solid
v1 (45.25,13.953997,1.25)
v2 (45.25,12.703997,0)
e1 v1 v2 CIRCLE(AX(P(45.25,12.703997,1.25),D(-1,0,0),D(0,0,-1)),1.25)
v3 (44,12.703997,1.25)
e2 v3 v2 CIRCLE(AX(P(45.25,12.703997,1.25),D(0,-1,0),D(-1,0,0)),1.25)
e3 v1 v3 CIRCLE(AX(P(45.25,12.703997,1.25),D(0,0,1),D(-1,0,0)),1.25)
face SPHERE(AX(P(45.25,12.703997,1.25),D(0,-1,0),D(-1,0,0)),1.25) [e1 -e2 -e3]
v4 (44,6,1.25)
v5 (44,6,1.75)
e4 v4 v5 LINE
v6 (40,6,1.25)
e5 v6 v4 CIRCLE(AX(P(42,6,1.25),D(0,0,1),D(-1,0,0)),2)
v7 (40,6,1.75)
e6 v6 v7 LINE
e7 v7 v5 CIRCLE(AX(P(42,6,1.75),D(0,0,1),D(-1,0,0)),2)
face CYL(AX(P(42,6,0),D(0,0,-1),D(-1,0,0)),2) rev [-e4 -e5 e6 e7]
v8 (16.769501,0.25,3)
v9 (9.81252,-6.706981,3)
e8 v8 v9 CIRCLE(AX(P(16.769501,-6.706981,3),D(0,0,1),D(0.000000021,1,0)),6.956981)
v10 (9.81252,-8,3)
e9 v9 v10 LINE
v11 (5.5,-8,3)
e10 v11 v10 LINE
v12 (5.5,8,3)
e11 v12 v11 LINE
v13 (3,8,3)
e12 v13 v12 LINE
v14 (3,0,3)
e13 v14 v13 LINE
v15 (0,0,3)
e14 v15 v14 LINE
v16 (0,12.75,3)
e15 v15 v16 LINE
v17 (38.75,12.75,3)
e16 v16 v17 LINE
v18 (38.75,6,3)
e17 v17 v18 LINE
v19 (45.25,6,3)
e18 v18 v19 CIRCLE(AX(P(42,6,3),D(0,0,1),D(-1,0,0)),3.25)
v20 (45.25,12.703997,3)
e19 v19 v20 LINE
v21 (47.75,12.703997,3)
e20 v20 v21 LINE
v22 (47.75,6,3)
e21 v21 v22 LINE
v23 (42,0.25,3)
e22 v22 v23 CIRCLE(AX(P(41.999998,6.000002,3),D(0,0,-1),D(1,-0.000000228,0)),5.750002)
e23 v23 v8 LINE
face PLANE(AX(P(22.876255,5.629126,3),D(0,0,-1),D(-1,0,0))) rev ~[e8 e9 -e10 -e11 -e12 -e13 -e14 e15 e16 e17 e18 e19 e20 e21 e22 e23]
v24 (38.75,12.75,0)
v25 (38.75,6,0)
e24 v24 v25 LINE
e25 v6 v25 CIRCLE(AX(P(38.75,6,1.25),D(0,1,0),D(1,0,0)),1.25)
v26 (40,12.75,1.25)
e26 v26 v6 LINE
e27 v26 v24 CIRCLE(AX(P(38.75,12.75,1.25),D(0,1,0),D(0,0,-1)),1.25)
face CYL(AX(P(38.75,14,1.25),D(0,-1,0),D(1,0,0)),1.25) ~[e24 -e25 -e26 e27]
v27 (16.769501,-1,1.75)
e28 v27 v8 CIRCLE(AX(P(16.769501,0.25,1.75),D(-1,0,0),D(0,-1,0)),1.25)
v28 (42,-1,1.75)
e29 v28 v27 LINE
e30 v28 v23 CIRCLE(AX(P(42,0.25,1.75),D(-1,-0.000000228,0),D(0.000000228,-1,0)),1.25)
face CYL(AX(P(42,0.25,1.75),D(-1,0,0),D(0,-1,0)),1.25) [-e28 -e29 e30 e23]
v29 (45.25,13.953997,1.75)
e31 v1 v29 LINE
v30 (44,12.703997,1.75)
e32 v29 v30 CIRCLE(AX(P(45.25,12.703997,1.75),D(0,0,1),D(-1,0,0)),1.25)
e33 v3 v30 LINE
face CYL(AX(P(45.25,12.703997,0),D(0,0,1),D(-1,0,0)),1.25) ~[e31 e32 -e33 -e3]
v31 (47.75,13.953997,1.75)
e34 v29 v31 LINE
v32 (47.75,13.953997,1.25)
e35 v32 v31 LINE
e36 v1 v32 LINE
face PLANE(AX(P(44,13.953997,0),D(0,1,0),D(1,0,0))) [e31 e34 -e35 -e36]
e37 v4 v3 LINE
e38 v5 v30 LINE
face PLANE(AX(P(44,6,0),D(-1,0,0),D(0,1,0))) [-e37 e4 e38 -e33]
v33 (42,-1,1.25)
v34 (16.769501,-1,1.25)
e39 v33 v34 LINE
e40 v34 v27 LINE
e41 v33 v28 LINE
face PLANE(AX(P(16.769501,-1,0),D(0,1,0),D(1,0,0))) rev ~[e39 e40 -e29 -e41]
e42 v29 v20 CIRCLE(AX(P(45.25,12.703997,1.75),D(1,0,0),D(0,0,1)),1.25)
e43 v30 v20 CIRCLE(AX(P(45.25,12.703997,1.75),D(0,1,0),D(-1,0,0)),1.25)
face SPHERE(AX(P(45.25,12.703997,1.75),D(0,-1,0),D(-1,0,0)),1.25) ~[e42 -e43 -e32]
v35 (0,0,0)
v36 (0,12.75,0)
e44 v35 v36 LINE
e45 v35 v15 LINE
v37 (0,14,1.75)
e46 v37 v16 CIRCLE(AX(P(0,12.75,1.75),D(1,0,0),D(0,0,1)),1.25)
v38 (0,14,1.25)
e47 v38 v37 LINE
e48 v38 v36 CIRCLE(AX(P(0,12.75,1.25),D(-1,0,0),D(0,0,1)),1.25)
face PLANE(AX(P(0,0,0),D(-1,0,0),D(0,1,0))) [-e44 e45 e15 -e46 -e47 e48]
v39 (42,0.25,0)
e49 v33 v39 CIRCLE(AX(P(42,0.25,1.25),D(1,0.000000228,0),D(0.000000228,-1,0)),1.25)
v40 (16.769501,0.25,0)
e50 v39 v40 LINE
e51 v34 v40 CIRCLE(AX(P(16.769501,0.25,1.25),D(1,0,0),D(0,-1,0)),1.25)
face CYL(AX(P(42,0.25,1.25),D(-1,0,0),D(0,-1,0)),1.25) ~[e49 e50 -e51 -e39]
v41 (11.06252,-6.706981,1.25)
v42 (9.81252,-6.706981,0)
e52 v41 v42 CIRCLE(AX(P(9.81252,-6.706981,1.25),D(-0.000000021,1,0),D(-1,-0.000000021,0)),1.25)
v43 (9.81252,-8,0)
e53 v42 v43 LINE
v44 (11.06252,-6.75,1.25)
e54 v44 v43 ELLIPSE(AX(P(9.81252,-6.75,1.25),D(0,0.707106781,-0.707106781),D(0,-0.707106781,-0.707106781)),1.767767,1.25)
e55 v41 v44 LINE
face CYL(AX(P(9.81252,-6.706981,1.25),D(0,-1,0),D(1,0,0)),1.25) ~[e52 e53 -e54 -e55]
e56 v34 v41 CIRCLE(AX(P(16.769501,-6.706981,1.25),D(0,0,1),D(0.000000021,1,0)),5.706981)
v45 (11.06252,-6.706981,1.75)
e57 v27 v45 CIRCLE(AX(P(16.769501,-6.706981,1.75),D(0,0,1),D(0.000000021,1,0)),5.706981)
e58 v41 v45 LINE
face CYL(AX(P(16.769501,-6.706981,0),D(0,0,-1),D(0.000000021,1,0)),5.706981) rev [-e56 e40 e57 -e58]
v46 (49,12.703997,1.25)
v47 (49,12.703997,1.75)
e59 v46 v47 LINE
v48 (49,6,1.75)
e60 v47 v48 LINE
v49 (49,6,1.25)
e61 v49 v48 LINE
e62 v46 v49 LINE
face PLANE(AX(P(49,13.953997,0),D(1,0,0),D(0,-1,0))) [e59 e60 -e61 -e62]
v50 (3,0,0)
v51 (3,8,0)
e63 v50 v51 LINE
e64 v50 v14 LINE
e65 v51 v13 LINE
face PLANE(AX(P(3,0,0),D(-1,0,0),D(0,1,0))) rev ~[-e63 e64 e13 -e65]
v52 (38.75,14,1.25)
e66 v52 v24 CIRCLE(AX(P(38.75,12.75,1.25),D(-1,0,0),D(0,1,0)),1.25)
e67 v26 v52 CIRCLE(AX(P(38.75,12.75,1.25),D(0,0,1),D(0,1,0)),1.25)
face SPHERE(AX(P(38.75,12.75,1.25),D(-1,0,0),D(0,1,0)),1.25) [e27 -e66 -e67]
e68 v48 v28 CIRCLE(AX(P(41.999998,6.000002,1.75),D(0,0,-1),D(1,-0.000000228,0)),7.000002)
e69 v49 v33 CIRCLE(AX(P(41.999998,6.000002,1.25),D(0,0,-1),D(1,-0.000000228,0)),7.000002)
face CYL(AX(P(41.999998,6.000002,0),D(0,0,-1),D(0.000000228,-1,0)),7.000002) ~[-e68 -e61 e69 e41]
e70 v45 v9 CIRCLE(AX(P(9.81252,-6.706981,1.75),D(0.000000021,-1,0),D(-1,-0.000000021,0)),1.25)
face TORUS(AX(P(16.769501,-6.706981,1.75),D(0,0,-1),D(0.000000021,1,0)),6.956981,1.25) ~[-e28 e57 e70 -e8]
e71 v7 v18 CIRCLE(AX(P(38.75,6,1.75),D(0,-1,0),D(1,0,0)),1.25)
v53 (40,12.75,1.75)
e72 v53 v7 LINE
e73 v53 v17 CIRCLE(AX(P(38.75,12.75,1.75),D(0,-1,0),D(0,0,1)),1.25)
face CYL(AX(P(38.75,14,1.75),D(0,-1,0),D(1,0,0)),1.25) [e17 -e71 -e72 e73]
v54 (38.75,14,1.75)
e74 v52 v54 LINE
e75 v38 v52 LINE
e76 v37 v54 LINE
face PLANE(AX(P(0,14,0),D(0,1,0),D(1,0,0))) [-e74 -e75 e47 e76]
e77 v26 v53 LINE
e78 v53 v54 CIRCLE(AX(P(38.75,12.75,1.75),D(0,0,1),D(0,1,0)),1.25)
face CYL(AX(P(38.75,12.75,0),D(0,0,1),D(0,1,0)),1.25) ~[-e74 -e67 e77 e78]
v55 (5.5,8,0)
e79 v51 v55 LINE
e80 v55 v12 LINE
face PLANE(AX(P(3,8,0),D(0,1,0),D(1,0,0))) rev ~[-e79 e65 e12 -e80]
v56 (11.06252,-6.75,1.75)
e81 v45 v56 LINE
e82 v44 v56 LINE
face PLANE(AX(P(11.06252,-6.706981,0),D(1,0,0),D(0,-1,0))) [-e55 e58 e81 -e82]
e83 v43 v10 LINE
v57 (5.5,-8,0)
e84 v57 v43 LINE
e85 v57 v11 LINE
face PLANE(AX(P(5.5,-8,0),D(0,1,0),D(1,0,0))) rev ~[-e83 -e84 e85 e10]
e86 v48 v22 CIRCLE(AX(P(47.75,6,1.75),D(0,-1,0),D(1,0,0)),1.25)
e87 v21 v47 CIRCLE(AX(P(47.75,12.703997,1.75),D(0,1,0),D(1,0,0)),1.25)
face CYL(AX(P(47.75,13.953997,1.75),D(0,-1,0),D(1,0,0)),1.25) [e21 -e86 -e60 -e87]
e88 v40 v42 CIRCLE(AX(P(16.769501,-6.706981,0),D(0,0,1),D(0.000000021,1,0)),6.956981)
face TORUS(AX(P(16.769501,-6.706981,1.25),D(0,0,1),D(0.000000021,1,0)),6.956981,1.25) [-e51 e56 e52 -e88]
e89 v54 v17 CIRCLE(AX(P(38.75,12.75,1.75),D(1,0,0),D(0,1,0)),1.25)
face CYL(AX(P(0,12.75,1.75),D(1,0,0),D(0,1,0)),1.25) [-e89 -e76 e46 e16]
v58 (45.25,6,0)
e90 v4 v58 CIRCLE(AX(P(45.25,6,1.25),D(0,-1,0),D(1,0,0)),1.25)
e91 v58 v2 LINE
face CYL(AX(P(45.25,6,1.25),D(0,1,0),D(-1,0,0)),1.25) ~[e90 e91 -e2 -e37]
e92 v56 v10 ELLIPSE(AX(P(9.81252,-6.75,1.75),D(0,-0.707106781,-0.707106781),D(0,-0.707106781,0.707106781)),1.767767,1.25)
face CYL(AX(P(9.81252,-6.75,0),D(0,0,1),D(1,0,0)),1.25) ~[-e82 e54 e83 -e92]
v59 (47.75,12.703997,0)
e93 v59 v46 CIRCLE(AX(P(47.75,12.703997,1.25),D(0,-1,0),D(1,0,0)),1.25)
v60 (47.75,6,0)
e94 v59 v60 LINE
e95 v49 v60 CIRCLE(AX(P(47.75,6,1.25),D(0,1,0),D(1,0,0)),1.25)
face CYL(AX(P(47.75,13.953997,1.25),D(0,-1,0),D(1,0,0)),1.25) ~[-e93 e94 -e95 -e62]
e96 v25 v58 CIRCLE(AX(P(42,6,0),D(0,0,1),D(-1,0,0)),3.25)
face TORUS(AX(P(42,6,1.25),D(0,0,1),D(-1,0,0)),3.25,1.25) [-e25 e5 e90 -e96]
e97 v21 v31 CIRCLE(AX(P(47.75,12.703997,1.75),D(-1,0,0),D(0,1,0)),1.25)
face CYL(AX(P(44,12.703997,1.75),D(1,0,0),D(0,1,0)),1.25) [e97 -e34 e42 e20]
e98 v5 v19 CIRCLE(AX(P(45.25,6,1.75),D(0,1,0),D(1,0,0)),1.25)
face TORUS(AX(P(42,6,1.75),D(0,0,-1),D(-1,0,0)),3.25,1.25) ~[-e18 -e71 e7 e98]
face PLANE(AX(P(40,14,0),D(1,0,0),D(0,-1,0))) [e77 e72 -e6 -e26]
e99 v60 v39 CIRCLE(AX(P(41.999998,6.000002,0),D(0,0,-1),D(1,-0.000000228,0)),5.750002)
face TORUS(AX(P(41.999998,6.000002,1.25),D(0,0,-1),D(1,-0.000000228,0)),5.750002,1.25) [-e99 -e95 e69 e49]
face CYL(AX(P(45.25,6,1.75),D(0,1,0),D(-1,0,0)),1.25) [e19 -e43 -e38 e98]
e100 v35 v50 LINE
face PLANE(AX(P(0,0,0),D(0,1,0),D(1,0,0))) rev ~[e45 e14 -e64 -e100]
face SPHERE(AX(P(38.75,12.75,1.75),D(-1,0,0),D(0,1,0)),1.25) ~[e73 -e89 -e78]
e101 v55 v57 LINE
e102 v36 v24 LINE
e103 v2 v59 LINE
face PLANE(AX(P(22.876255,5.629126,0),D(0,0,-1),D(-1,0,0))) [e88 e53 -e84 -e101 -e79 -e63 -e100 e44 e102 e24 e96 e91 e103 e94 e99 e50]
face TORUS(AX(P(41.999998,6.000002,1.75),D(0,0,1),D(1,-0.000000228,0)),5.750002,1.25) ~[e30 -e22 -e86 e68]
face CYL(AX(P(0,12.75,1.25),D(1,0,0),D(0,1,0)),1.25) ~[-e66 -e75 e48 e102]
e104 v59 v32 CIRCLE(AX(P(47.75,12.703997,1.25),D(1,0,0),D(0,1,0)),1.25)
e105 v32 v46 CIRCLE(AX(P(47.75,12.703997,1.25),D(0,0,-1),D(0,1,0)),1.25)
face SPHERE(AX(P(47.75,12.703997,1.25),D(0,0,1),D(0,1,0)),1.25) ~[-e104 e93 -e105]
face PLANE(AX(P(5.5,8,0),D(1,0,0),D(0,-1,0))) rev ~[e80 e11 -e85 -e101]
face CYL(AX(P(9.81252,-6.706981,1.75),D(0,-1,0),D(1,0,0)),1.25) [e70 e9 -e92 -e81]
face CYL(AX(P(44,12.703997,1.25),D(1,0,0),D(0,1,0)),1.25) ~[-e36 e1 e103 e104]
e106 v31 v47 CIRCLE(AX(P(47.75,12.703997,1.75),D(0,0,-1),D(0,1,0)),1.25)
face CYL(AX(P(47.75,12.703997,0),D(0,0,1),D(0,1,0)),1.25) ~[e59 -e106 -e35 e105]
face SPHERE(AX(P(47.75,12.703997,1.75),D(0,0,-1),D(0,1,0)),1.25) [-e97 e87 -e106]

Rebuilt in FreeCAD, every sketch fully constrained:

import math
import FreeCAD as App
import Part
import Sketcher
from FreeCAD import Vector


def edges_at(feature, points):
    """Names of the edges that pass closest to the given points."""
    edges = feature.Shape.Edges
    near = lambda p: min(range(len(edges)), key=lambda i: edges[i].distToShape(Part.Vertex(*p))[0])
    return sorted({f"Edge{near(p) + 1}" for p in points})

doc = App.newDocument("Part")
params = doc.addObject("Spreadsheet::Sheet", "Params")
for row, (alias, value) in enumerate([
    ("sketch1_radius", "7.000002 mm"),
    ("sketch1_radius2", "2 mm"),
    ("sketch1_width", "3 mm"),
    ("sketch1_width2", "40 mm"),
    ("sketch1_height", "14 mm"),
    ("pad1_length", "3 mm"),
    ("fillet_radius", "1.25 mm"),
], start=1):
    params.set(f"A{row}", alias)
    params.set(f"B{row}", "=" + value)
    params.setAlias(f"B{row}", alias)

body = doc.addObject("PartDesign::Body", "Body")

# Sketch on XY plane
sketch1 = doc.addObject("Sketcher::SketchObject", "Sketch")
body.addObject(sketch1)
sketch1.AttachmentSupport = (doc.XY_Plane, [""])
sketch1.MapMode = "FlatFace"
sketch1.addGeometry(Part.LineSegment(Vector(0, 14, 0), Vector(0, 0, 0)), False)
sketch1.addGeometry(Part.LineSegment(Vector(0, 0, 0), Vector(3, 0, 0)), False)
sketch1.addGeometry(Part.LineSegment(Vector(3, 0, 0), Vector(3, 8, 0)), False)
sketch1.addGeometry(Part.LineSegment(Vector(3, 8, 0), Vector(5.5, 8, 0)), False)
sketch1.addGeometry(Part.LineSegment(Vector(5.5, 8, 0), Vector(5.5, -8, 0)), False)
sketch1.addGeometry(Part.LineSegment(Vector(5.5, -8, 0), Vector(11.1, -8, 0)), False)
sketch1.addGeometry(Part.LineSegment(Vector(11.1, -8, 0), Vector(11.1, -6.7, 0)), False)
sketch1.addGeometry(Part.ArcOfCircle(Part.Circle(Vector(16.8, -6.7, 0), Vector(0, 0, 1), 5.7), math.radians(90), math.radians(180)), False)
sketch1.addGeometry(Part.LineSegment(Vector(16.8, -1, 0), Vector(42, -1, 0)), False)
sketch1.addGeometry(Part.ArcOfCircle(Part.Circle(Vector(42, 6, 0), Vector(0, 0, 1), 7), math.radians(-90), math.radians(0)), False)
sketch1.addGeometry(Part.LineSegment(Vector(49, 6, 0), Vector(49, 14, 0)), False)
sketch1.addGeometry(Part.LineSegment(Vector(49, 14, 0), Vector(44, 14, 0)), False)
sketch1.addGeometry(Part.LineSegment(Vector(44, 14, 0), Vector(44, 6, 0)), False)
sketch1.addGeometry(Part.ArcOfCircle(Part.Circle(Vector(42, 6, 0), Vector(0, 0, 1), 2), math.radians(180), math.radians(360)), False)
sketch1.addGeometry(Part.LineSegment(Vector(40, 6, 0), Vector(40, 14, 0)), False)
sketch1.addGeometry(Part.LineSegment(Vector(40, 14, 0), Vector(0, 14, 0)), False)
sketch1.addConstraint(Sketcher.Constraint("Coincident", 0, 2, 1, 1))
sketch1.addConstraint(Sketcher.Constraint("Coincident", 1, 2, 2, 1))
sketch1.addConstraint(Sketcher.Constraint("Coincident", 2, 2, 3, 1))
sketch1.addConstraint(Sketcher.Constraint("Coincident", 3, 2, 4, 1))
sketch1.addConstraint(Sketcher.Constraint("Coincident", 4, 2, 5, 1))
sketch1.addConstraint(Sketcher.Constraint("Coincident", 5, 2, 6, 1))
sketch1.addConstraint(Sketcher.Constraint("Tangent", 6, 2, 7, 2))
sketch1.addConstraint(Sketcher.Constraint("Tangent", 7, 1, 8, 1))
sketch1.addConstraint(Sketcher.Constraint("Tangent", 8, 2, 9, 1))
sketch1.addConstraint(Sketcher.Constraint("Tangent", 9, 2, 10, 1))
sketch1.addConstraint(Sketcher.Constraint("Coincident", 10, 2, 11, 1))
sketch1.addConstraint(Sketcher.Constraint("Coincident", 11, 2, 12, 1))
sketch1.addConstraint(Sketcher.Constraint("Tangent", 12, 2, 13, 2))
sketch1.addConstraint(Sketcher.Constraint("Tangent", 13, 1, 14, 1))
sketch1.addConstraint(Sketcher.Constraint("Coincident", 14, 2, 15, 1))
sketch1.addConstraint(Sketcher.Constraint("Coincident", 15, 2, 0, 1))
sketch1.addConstraint(Sketcher.Constraint("Vertical", 0))
sketch1.addConstraint(Sketcher.Constraint("Horizontal", 1))
sketch1.addConstraint(Sketcher.Constraint("Vertical", 2))
sketch1.addConstraint(Sketcher.Constraint("Horizontal", 3))
sketch1.addConstraint(Sketcher.Constraint("Vertical", 4))
sketch1.addConstraint(Sketcher.Constraint("Horizontal", 5))
sketch1.addConstraint(Sketcher.Constraint("Vertical", 6))
sketch1.addConstraint(Sketcher.Constraint("Horizontal", 8))
sketch1.addConstraint(Sketcher.Constraint("Vertical", 10))
sketch1.addConstraint(Sketcher.Constraint("Horizontal", 11))
sketch1.addConstraint(Sketcher.Constraint("Vertical", 12))
sketch1.addConstraint(Sketcher.Constraint("Vertical", 14))
sketch1.addConstraint(Sketcher.Constraint("Horizontal", 15))
sketch1.addConstraint(Sketcher.Constraint("Coincident", 0, 2, -1, 1))
sketch1.addConstraint(Sketcher.Constraint("Coincident", 13, 3, 9, 3))
sketch1.addConstraint(Sketcher.Constraint("Equal", 2, 14))
sketch1.addConstraint(Sketcher.Constraint("Radius", 9, 7.000002))
sketch1.addConstraint(Sketcher.Constraint("Radius", 13, 2.0))
sketch1.addConstraint(Sketcher.Constraint("DistanceX", 1, 1, 1, 2, 3.0))
sketch1.addConstraint(Sketcher.Constraint("DistanceX", 15, 2, 15, 1, 40.0))
sketch1.addConstraint(Sketcher.Constraint("DistanceY", 0, 2, 0, 1, 14.0))
sketch1.addConstraint(Sketcher.Constraint("DistanceY", 2, 1, 2, 2, 8.0))
sketch1.addConstraint(Sketcher.Constraint("DistanceY", 4, 2, 4, 1, 16.0))
sketch1.addConstraint(Sketcher.Constraint("DistanceX", 3, 1, 3, 2, 2.5))
sketch1.addConstraint(Sketcher.Constraint("Radius", 7, 5.706981))
sketch1.addConstraint(Sketcher.Constraint("DistanceX", 8, 1, 8, 2, 25.230499))
sketch1.addConstraint(Sketcher.Constraint("DistanceY", 10, 1, 10, 2, 7.953997))
sketch1.setExpression("Constraints[32]", "Params.sketch1_radius")
sketch1.setExpression("Constraints[33]", "Params.sketch1_radius2")
sketch1.setExpression("Constraints[34]", "Params.sketch1_width")
sketch1.setExpression("Constraints[35]", "Params.sketch1_width2")
sketch1.setExpression("Constraints[36]", "Params.sketch1_height")
pad1 = doc.addObject("PartDesign::Pad", "Pad")
body.addObject(pad1)
pad1.Profile = sketch1
pad1.setExpression("Length", "Params.pad1_length")
doc.recompute()

fillet = doc.addObject("PartDesign::Fillet", "Fillet")
body.addObject(fillet)
fillet.Base = (pad1, edges_at(pad1, [
    (20, 14, 3),
    (20, 14, 0),
    (40, 14, 1.5),
    (40, 10, 0),
    (40, 10, 3),
    (42, 4, 0),
    (42, 4, 3),
    (44, 13.954, 1.5),
    (44, 9.977, 0),
    (44, 9.977, 3),
    (49, 13.954, 1.5),
    (46.5, 13.954, 0),
    (46.5, 13.954, 3),
    (49, 9.977, 0),
    (49, 9.977, 3),
    (46.95, 1.05, 0),
    (46.95, 1.05, 3),
    (29.385, -1, 0),
    (29.385, -1, 3),
    (12.734, -2.672, 0),
    (12.734, -2.672, 3),
    (11.063, -8, 1.5),
    (11.063, -7.353, 0),
    (11.063, -7.353, 3),
]))
fillet.setExpression("Radius", "Params.fillet_radius")

doc.recompute()
